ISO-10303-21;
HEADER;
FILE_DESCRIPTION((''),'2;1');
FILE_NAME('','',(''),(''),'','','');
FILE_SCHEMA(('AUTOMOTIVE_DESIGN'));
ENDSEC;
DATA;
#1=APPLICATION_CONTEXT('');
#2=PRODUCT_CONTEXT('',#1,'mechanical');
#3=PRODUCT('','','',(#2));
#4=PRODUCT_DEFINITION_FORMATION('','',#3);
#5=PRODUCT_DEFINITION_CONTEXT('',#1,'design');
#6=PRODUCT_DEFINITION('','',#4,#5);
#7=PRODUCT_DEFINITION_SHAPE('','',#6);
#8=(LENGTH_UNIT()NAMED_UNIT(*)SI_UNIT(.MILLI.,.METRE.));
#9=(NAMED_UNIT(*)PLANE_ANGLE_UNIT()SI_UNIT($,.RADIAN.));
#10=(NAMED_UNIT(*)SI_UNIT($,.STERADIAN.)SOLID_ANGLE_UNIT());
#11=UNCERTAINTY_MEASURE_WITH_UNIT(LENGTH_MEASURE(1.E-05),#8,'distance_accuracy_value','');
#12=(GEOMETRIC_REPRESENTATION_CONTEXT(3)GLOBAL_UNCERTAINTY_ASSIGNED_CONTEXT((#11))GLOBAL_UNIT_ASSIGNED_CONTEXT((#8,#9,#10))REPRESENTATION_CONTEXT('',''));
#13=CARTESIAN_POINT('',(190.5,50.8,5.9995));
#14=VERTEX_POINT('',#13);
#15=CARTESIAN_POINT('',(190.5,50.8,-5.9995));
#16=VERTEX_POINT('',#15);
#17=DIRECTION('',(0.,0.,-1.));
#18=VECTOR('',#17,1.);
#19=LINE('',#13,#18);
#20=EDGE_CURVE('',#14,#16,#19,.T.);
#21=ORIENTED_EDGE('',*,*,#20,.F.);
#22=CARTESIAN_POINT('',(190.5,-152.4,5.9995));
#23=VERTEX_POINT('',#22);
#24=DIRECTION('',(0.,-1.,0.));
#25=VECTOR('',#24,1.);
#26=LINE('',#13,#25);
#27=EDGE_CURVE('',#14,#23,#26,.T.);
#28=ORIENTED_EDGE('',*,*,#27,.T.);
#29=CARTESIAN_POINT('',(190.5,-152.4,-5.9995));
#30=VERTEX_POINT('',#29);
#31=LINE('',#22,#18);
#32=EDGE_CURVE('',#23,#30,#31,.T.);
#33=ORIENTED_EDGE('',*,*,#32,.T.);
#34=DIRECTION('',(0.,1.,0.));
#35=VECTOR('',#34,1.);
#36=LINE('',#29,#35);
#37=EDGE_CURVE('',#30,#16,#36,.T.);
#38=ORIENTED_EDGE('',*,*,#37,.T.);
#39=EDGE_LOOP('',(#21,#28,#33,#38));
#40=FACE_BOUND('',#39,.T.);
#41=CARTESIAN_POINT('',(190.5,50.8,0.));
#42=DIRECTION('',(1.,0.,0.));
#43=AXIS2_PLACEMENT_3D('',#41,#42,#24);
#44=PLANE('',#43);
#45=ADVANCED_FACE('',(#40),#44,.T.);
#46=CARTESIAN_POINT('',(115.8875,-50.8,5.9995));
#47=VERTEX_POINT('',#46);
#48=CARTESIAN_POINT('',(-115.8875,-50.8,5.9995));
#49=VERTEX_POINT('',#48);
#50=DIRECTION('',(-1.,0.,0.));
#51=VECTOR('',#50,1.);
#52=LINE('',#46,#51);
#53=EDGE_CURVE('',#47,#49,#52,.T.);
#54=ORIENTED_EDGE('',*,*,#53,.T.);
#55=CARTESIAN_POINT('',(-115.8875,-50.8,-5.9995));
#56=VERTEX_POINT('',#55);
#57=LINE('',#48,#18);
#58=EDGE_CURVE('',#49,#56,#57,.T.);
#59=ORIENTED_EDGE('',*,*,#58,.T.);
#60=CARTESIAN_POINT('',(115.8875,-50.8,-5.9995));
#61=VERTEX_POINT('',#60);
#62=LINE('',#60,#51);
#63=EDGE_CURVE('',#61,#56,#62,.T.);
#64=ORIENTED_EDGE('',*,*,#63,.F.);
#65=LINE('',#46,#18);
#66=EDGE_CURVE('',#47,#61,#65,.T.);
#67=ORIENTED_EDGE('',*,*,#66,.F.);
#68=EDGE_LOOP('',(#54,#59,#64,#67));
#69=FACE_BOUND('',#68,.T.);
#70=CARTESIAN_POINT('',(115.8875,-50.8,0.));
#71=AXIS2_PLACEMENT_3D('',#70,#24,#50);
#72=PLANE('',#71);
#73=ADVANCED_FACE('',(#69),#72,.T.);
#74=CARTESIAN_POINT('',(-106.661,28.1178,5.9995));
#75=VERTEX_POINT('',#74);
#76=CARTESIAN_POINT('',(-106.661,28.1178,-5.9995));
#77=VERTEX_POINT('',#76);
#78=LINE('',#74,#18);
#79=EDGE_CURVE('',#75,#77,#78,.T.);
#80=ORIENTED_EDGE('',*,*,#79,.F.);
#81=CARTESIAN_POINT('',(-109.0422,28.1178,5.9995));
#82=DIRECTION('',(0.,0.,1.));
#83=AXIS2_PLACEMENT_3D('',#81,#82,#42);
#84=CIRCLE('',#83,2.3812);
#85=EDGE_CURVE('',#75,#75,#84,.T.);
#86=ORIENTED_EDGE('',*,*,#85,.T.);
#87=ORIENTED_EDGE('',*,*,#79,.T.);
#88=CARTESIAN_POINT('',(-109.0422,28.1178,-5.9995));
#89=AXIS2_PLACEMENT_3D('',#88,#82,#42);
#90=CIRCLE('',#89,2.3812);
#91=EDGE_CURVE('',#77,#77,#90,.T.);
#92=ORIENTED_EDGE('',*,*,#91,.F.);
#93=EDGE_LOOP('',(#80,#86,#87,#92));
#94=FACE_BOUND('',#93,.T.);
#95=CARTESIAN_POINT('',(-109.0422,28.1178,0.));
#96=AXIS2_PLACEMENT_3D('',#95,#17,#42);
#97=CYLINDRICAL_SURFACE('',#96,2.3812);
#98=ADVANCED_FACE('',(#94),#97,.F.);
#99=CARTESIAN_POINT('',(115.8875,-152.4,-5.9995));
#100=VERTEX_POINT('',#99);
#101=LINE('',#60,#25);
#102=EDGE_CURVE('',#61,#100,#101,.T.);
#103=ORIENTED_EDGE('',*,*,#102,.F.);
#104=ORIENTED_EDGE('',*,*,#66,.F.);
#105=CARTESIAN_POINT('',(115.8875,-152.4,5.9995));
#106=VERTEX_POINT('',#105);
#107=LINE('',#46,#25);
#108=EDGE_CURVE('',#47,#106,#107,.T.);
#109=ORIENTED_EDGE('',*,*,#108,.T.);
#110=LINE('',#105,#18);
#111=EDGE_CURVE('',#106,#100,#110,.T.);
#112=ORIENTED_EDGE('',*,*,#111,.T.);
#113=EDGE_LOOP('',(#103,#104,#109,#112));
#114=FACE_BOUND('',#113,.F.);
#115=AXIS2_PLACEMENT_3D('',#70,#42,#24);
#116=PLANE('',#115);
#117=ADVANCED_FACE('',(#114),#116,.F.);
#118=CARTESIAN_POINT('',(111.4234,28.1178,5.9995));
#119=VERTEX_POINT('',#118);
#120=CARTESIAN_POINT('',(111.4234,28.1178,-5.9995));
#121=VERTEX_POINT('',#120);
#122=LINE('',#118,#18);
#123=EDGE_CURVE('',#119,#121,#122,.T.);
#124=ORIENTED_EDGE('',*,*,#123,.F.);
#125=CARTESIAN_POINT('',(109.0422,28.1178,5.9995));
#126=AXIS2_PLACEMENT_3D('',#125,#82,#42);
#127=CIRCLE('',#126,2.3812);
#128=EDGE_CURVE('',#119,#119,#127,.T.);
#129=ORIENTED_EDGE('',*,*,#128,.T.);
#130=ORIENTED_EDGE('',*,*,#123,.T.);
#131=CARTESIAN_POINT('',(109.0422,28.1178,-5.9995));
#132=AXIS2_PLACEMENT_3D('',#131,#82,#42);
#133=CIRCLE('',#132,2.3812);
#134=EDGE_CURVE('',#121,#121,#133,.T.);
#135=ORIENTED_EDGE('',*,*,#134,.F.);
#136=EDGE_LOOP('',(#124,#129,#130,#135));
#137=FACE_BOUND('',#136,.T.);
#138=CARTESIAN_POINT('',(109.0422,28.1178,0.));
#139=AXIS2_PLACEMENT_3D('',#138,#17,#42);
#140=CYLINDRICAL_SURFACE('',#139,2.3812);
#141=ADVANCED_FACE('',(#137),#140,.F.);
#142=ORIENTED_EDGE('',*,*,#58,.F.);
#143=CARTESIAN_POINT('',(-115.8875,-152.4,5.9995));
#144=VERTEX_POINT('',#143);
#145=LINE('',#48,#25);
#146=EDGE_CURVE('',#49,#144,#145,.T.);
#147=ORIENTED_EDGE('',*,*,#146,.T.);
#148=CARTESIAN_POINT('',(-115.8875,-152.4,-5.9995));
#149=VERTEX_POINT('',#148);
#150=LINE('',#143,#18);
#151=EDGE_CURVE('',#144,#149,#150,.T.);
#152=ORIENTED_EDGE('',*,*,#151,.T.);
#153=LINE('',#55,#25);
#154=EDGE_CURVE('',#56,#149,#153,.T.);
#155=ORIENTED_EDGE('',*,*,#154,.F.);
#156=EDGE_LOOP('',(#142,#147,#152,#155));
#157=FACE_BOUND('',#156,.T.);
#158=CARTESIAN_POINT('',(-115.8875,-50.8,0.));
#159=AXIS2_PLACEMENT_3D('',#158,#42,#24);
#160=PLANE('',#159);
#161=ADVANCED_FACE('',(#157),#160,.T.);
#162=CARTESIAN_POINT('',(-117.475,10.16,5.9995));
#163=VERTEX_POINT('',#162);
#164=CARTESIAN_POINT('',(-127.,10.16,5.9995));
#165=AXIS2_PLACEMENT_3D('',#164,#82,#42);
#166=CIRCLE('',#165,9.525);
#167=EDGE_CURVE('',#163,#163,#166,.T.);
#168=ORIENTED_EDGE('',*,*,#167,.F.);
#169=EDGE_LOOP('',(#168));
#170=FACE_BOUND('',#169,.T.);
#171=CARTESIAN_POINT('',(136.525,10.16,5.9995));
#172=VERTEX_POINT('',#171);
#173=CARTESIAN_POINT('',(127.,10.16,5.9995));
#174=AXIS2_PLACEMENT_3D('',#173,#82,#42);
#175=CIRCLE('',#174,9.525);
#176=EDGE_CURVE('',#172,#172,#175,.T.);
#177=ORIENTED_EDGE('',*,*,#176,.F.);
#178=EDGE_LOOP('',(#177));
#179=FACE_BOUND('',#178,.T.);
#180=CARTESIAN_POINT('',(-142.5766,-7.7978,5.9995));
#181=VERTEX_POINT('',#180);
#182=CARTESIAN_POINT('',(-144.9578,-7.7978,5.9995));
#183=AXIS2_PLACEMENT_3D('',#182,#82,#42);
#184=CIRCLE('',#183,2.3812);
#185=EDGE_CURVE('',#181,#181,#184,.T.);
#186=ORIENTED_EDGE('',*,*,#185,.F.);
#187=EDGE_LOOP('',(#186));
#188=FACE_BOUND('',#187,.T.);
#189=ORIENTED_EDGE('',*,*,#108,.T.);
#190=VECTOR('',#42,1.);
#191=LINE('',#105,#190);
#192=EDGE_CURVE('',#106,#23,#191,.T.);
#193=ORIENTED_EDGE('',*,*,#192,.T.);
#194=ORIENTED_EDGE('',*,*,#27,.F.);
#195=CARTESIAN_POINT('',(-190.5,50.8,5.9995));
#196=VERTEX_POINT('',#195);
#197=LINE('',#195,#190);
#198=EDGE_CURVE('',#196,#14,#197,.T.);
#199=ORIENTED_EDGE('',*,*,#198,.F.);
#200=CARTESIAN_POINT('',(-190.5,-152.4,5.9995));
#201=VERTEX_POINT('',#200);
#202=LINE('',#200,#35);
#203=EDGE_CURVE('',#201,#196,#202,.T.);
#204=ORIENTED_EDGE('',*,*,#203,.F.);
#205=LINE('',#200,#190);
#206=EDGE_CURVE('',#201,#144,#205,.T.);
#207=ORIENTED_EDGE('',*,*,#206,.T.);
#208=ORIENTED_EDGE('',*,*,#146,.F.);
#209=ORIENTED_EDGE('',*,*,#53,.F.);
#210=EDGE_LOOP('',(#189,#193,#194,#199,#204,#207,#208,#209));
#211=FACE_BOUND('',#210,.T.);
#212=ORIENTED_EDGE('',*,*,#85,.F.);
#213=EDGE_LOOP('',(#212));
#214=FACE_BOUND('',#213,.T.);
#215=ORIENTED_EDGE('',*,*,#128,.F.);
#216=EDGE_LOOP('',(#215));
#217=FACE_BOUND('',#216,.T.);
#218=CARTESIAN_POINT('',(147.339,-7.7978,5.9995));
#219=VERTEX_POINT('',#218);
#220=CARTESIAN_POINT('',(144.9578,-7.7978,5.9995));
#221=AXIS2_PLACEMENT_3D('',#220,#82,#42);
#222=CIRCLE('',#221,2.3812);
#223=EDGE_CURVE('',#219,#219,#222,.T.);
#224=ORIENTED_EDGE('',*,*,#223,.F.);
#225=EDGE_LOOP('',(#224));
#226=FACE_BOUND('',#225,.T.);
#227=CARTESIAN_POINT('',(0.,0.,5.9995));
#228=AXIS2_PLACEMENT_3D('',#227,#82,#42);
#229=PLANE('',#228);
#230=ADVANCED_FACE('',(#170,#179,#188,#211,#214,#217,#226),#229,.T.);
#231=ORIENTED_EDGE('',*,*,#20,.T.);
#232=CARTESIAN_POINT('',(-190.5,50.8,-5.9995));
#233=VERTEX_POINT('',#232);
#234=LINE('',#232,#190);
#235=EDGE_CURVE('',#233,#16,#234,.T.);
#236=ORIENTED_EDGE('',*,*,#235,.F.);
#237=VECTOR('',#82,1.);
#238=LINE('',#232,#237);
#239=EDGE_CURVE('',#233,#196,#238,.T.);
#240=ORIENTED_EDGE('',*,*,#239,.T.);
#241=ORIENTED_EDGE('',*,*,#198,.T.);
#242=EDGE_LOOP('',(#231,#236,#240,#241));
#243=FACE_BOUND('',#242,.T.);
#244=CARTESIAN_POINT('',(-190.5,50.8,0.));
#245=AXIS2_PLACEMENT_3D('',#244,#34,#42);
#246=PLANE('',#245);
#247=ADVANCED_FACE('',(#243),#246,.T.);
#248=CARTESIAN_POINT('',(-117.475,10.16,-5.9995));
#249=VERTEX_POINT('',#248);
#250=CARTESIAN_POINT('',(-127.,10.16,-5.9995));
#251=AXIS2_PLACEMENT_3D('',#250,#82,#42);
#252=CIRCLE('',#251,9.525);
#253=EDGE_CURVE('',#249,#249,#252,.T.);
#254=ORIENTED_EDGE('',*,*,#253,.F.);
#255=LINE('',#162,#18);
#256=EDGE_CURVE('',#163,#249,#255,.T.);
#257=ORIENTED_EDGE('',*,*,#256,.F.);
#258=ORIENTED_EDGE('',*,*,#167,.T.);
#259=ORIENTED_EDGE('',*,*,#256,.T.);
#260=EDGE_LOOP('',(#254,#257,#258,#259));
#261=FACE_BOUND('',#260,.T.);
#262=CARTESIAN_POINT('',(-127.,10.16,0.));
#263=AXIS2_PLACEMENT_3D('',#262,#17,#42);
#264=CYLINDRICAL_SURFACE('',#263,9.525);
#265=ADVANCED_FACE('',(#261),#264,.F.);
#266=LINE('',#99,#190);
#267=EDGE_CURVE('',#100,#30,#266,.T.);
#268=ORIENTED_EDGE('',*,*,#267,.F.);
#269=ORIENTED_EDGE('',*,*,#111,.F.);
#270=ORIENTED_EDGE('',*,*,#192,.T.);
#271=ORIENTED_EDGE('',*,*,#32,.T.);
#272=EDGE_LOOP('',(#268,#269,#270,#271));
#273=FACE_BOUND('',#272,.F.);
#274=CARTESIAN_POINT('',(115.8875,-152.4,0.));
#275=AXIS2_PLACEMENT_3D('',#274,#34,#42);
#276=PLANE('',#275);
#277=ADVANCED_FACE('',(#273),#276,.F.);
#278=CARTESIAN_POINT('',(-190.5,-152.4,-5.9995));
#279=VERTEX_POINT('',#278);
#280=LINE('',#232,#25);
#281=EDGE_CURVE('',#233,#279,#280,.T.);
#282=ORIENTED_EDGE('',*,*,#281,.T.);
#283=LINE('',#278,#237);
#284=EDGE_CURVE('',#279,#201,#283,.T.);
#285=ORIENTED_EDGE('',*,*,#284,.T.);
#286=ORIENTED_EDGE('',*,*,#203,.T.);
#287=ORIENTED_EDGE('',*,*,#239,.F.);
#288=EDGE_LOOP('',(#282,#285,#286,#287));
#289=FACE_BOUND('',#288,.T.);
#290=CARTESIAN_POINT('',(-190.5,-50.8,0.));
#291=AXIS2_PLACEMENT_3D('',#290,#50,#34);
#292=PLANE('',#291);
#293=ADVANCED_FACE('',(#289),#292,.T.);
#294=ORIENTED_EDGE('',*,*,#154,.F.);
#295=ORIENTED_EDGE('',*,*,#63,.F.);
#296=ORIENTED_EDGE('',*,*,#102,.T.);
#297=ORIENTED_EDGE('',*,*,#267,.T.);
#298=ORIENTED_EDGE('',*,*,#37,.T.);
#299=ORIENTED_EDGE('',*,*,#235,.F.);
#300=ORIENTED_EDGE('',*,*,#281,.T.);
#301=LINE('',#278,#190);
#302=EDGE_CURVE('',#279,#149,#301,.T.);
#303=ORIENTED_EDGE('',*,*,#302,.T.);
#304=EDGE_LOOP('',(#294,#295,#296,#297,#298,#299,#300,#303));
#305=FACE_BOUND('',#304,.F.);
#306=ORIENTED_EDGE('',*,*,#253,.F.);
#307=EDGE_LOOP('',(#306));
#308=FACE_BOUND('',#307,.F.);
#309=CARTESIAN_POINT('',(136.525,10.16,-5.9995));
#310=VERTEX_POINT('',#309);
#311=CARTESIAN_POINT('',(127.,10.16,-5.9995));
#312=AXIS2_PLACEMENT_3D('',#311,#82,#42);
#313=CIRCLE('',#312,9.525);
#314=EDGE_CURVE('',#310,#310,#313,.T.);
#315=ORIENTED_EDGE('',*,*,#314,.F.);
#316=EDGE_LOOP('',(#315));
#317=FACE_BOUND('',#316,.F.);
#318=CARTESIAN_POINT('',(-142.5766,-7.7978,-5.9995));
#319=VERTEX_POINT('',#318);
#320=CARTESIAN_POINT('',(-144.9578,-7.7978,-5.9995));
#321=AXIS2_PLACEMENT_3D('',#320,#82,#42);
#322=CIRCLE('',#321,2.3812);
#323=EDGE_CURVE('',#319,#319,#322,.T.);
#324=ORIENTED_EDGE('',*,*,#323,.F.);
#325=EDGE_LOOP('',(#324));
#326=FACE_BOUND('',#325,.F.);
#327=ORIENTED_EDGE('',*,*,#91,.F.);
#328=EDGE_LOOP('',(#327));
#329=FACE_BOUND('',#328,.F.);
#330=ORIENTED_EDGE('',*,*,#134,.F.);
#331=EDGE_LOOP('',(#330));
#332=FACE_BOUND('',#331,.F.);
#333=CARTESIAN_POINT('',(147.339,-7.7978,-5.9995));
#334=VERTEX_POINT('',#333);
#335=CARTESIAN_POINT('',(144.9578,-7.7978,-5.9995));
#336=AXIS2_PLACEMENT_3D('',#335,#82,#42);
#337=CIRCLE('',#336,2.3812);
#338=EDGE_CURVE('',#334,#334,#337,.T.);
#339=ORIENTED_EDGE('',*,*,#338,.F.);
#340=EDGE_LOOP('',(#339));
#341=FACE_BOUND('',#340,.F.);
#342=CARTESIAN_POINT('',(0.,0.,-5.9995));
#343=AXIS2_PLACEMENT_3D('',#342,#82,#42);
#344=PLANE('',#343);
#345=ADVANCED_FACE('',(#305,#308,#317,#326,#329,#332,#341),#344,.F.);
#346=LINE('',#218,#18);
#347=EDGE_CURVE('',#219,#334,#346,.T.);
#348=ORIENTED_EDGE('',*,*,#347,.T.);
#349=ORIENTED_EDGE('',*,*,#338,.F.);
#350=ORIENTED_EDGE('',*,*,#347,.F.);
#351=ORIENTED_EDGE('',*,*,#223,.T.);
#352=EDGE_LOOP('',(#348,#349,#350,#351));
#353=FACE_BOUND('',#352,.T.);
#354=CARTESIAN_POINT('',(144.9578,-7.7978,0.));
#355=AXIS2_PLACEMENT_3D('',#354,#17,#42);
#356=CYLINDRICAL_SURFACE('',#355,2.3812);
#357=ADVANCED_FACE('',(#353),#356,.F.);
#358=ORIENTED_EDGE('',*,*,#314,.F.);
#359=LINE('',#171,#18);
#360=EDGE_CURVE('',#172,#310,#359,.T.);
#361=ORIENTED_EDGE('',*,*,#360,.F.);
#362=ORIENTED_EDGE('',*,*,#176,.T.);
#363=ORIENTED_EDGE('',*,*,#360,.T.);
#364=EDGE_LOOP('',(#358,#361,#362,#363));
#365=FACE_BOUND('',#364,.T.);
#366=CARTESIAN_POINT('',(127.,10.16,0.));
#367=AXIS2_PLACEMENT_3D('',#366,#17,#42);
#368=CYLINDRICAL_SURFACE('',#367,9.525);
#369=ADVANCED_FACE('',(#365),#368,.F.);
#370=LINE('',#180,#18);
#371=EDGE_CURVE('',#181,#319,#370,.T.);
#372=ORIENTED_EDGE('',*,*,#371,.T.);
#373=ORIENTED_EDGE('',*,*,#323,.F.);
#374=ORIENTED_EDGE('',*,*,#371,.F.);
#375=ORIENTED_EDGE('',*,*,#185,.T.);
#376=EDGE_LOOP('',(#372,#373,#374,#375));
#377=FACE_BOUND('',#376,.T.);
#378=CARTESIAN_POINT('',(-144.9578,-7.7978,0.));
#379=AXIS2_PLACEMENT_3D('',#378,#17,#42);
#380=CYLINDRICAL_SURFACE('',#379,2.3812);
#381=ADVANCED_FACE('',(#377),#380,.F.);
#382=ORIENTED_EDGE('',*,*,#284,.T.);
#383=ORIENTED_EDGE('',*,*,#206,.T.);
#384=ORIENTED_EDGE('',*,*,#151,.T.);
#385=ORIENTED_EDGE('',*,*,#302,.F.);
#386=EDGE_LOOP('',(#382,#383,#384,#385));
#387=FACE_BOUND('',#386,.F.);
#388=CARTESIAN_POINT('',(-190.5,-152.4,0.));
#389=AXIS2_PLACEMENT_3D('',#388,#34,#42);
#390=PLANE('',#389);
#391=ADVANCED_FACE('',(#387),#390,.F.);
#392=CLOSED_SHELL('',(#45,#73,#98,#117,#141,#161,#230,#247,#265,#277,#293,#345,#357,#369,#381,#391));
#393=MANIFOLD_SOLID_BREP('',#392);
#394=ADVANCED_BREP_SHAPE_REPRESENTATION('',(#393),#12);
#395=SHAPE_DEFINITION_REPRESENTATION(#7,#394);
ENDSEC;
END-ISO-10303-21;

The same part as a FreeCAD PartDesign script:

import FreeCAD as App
import Part
import Sketcher
from FreeCAD import Vector
Q = App.Units.Quantity


def add_polygon(sketch, points):
    """Adds a closed chain of lines whose ends are joined by coincident constraints."""
    first, n = sketch.GeometryCount, len(points)
    for a, b in zip(points, points[1:] + points[:1]):
        sketch.addGeometry(Part.LineSegment(App.Vector(*a, 0), App.Vector(*b, 0)), False)
    for i in range(n):
        sketch.addConstraint(Sketcher.Constraint("Coincident", first + i, 2, first + (i + 1) % n, 1))

doc = App.newDocument("Part")
body = doc.addObject("PartDesign::Body", "Body")

# Sketch on XY plane
sketch1 = body.newObject("Sketcher::SketchObject", "Sketch")
sketch1.AttachmentSupport = (doc.getObject("XY_Plane"), [""])
sketch1.MapMode = "FlatFace"
add_polygon(sketch1, [(190.5, 50.8), (-190.5, 50.8), (-190.5, -152.4), (-115.9, -152.4), (-115.9, -50.8), (115.9, -50.8), (115.9, -152.4), (190.5, -152.4)])  # lines 0-7
sketch1.addGeometry(Part.Circle(Vector(-145, -7.8, 0), Vector(0, 0, 1), 2.4), False)  # 8
sketch1.addGeometry(Part.Circle(Vector(-127, 10.2, 0), Vector(0, 0, 1), 9.5), False)  # 9
sketch1.addGeometry(Part.Circle(Vector(-109, 28.1, 0), Vector(0, 0, 1), 2.4), False)  # 10
sketch1.addGeometry(Part.Circle(Vector(145, -7.8, 0), Vector(0, 0, 1), 2.4), False)  # 11
sketch1.addGeometry(Part.Circle(Vector(127, 10.2, 0), Vector(0, 0, 1), 9.5), False)  # 12
sketch1.addGeometry(Part.Circle(Vector(109, 28.1, 0), Vector(0, 0, 1), 2.4), False)  # 13
sketch1.addConstraint([
    Sketcher.Constraint("Horizontal", 0),
    Sketcher.Constraint("Vertical", 1),
    Sketcher.Constraint("Horizontal", 2),
    Sketcher.Constraint("Vertical", 3),
    Sketcher.Constraint("Horizontal", 4),
    Sketcher.Constraint("Vertical", 5),
    Sketcher.Constraint("Horizontal", 6),
    Sketcher.Constraint("Vertical", 7),
    Sketcher.Constraint("Equal", 8, 10),
    Sketcher.Constraint("Equal", 10, 11),
    Sketcher.Constraint("Equal", 9, 12),
    Sketcher.Constraint("Equal", 11, 13),
    Sketcher.Constraint("Symmetric", 8, 3, 11, 3, -2),
    Sketcher.Constraint("Symmetric", 9, 3, 12, 3, -2),
    Sketcher.Constraint("Symmetric", 10, 3, 13, 3, -2),
    Sketcher.Constraint("Symmetric", 2, 2, 5, 2, -2),
    Sketcher.Constraint("Equal", 2, 6),
    Sketcher.Constraint("Diameter", 9, Q("0.75 in")),
    Sketcher.Constraint("DistanceX", 0, 2, 0, 1, Q("15 in")),
    Sketcher.Constraint("DistanceY", 3, 1, 3, 2, Q("4 in")),
    Sketcher.Constraint("Diameter", 8, Q("0.1875 in")),
    Sketcher.Constraint("DistanceX", 9, 3, -1, 1, Q("5 in")),
    Sketcher.Constraint("DistanceY", 3, 2, 0, 2, Q("4 in")),
    Sketcher.Constraint("DistanceY", 3, 2, 9, 3, Q("2.4 in")),
    Sketcher.Constraint("DistanceX", 2, 2, -1, 1, Q("4.5625 in")),
    Sketcher.Constraint("DistanceY", -1, 1, 0, 2, Q("2 in")),
    Sketcher.Constraint("DistanceX", 8, 3, 9, 3, Q("0.707 in")),
    Sketcher.Constraint("DistanceY", 8, 3, 9, 3, Q("0.707 in")),
    Sketcher.Constraint("DistanceX", 9, 3, 10, 3, Q("0.707 in")),
    Sketcher.Constraint("DistanceY", 9, 3, 10, 3, Q("0.707 in")),
])
pad1 = body.newObject("PartDesign::Pad", "Pad")
pad1.Profile = sketch1
pad1.Length = Q("0.4724016 in")
pad1.Midplane = True

doc.recompute()
